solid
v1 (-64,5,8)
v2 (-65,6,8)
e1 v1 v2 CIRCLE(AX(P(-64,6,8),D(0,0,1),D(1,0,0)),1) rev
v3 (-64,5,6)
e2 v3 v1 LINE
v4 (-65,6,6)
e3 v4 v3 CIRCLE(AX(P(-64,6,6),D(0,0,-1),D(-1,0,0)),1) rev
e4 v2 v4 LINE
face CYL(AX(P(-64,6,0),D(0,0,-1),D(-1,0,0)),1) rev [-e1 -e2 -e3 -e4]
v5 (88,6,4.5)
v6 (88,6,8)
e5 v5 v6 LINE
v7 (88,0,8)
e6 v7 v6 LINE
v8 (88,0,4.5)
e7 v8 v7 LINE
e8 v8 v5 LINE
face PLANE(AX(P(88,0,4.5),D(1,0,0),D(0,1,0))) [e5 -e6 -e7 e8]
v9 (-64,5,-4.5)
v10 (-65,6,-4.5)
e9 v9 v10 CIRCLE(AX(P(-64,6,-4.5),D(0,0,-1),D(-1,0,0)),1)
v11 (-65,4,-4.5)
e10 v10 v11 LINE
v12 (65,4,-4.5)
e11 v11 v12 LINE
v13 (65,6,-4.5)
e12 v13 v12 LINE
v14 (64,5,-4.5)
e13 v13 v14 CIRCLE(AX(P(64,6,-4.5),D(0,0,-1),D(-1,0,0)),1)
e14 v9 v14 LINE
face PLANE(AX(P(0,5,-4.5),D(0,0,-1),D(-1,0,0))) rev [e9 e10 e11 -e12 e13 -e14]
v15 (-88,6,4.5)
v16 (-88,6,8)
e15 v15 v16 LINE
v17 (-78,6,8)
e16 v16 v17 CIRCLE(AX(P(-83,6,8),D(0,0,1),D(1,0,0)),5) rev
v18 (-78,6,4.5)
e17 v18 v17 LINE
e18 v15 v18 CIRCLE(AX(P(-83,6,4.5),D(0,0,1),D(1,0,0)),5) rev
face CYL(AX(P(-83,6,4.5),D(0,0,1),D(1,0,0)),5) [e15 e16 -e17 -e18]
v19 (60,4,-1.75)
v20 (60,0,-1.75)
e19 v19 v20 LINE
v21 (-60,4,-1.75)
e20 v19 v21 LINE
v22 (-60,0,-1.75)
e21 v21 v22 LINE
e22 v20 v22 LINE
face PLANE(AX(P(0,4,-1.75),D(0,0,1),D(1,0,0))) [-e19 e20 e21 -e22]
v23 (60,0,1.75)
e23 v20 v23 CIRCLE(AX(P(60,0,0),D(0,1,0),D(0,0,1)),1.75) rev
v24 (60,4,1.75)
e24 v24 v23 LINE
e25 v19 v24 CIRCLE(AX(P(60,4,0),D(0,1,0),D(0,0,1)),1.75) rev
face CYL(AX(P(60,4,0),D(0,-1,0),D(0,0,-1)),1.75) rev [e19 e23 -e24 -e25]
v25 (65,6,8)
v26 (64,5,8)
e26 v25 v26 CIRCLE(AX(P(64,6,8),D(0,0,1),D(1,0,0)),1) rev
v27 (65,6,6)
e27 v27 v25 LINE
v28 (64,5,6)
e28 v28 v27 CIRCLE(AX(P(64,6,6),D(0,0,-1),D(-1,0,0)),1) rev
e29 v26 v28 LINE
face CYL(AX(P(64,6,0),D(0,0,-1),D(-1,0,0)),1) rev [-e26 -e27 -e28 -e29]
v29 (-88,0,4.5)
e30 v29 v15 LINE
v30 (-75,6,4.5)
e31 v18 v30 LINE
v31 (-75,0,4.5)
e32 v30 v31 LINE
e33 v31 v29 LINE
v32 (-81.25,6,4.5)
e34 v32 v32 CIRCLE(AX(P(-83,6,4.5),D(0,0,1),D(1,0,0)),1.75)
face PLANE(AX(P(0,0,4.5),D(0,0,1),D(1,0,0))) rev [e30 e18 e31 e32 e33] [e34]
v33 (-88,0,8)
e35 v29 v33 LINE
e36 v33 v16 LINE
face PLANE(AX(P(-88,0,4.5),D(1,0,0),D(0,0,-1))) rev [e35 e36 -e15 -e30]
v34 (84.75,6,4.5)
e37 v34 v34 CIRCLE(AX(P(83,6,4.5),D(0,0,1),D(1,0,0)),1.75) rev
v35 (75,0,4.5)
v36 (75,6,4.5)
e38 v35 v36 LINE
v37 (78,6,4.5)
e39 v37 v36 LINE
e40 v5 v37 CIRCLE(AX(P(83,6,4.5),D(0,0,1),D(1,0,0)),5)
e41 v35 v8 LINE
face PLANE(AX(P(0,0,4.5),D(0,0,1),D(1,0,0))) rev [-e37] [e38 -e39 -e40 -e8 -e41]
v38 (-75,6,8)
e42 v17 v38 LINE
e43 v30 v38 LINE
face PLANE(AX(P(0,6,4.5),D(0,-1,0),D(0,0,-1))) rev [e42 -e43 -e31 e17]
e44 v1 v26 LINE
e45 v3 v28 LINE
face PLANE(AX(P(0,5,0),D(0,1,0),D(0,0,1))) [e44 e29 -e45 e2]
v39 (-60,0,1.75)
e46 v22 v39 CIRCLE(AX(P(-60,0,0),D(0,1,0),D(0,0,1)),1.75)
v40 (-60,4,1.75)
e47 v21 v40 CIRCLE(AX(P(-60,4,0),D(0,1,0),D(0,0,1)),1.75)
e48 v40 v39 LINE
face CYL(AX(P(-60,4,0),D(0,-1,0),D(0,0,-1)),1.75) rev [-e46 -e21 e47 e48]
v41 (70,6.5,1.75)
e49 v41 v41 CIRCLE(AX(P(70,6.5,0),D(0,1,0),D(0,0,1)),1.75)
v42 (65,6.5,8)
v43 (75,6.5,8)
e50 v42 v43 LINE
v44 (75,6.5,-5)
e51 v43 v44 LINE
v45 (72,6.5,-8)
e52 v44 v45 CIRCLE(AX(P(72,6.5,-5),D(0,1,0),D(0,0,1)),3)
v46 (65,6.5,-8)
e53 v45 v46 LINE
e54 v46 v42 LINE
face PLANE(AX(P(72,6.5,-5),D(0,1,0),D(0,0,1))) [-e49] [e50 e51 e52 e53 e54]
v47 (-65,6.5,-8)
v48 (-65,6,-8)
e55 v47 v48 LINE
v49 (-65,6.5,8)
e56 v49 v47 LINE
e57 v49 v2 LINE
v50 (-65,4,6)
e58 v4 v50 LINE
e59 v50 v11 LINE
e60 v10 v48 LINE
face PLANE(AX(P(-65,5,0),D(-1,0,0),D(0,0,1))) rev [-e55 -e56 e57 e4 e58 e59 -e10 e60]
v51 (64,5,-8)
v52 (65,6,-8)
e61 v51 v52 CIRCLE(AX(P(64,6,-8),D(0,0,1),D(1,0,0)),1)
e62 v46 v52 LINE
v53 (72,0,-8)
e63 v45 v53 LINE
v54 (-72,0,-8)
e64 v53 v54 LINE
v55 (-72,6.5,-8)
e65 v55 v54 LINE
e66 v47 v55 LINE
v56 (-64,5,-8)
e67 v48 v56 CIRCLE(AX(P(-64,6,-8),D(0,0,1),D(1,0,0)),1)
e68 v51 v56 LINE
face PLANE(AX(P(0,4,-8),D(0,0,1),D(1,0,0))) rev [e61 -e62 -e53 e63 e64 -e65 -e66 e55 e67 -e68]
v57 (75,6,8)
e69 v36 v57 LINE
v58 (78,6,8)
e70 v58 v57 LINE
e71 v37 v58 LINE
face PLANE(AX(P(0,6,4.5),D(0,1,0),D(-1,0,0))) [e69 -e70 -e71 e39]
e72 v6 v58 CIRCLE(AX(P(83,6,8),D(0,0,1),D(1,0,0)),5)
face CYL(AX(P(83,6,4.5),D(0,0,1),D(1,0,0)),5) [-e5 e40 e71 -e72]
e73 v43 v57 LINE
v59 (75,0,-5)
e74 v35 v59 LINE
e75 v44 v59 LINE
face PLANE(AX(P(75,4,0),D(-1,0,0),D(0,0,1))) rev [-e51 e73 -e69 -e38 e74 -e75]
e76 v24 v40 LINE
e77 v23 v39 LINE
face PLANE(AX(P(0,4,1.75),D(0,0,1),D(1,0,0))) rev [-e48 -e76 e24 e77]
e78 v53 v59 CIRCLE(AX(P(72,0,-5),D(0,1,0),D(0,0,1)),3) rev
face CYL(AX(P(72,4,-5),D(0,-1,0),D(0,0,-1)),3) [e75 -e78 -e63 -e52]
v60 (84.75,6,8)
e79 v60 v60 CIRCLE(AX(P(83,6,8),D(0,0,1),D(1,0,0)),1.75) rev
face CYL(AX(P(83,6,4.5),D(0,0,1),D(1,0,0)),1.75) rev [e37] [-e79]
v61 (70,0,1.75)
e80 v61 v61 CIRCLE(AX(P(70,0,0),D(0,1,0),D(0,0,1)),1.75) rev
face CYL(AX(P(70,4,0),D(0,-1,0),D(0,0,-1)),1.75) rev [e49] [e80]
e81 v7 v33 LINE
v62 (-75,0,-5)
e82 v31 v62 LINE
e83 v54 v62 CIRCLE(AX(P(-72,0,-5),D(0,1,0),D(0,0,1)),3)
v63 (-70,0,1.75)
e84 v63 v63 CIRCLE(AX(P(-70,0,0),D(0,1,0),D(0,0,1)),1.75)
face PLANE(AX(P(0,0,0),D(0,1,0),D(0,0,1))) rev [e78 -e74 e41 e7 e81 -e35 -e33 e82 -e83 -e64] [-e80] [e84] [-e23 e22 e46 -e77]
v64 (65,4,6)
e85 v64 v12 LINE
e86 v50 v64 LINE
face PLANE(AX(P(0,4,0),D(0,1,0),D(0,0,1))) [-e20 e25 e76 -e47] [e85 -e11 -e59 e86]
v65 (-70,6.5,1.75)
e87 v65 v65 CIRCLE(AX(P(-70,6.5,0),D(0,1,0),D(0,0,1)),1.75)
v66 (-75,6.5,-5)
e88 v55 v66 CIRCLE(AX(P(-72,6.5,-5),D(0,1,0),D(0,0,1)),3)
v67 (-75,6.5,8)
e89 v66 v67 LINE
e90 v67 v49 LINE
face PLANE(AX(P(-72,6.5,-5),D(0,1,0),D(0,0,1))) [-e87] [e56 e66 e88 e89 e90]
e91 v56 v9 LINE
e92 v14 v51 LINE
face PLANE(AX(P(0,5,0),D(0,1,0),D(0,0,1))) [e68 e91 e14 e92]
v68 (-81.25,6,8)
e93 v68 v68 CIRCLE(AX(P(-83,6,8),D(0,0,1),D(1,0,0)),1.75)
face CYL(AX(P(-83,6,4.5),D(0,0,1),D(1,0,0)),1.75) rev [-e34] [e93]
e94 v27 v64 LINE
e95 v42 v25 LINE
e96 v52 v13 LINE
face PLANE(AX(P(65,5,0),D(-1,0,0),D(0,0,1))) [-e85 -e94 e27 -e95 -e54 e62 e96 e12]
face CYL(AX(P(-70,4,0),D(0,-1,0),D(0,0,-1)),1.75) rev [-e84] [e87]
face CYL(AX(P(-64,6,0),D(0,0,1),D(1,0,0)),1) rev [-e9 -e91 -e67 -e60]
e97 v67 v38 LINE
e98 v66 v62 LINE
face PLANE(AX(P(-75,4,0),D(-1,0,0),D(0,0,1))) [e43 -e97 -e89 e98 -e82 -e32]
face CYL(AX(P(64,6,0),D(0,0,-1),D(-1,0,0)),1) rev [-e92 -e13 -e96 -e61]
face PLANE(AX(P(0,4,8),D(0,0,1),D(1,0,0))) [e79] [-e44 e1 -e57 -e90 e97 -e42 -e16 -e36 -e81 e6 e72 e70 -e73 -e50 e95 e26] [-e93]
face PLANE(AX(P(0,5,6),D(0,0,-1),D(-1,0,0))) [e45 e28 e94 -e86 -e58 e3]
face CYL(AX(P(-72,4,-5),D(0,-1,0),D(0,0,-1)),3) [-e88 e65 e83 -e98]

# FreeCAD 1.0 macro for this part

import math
import FreeCAD as App
import Part
import Sketcher

V = App.Vector


def edges_at(feature, points):
    """Names of the edges that pass closest to the given points."""
    edges = feature.Shape.Edges
    near = lambda p: min(range(len(edges)), key=lambda i: edges[i].distToShape(Part.Vertex(*p))[0])
    return sorted({f"Edge{near(p) + 1}" for p in points})

doc = App.newDocument("Part")
body = doc.addObject("PartDesign::Body", "Body")

sketch1 = body.newObject("Sketcher::SketchObject", "Sketch")
sketch1.AttachmentSupport = (doc.getObject("XZ_Plane"), [""])
sketch1.MapMode = "FlatFace"
sketch1.addGeometry([
    Part.LineSegment(V(-75, 8, 0), V(75, 8, 0)),
    Part.LineSegment(V(75, 8, 0), V(75, -5, 0)),
    Part.ArcOfCircle(Part.Circle(V(72, -5, 0), V(0, 0, 1), 3), math.radians(-90), math.radians(0)),
    Part.LineSegment(V(72, -8, 0), V(-72, -8, 0)),
    Part.ArcOfCircle(Part.Circle(V(-72, -5, 0), V(0, 0, 1), 3), math.radians(180), math.radians(270)),
    Part.LineSegment(V(-75, -5, 0), V(-75, 8, 0)),
    Part.Circle(V(-70, 0, 0), V(0, 0, 1), 1.75),
    Part.Circle(V(70, 0, 0), V(0, 0, 1), 1.75),
    Part.ArcOfCircle(Part.Circle(V(60, 0, 0), V(0, 0, 1), 1.75), math.radians(-90), math.radians(0)),
    Part.ArcOfCircle(Part.Circle(V(60, 0, 0), V(0, 0, 1), 1.75), math.radians(0), math.radians(90)),
    Part.LineSegment(V(60, 1.75, 0), V(-60, 1.75, 0)),
    Part.ArcOfCircle(Part.Circle(V(-60, 0, 0), V(0, 0, 1), 1.75), math.radians(90), math.radians(270)),
    Part.LineSegment(V(-60, -1.75, 0), V(60, -1.75, 0)),
], False)
sketch1.addConstraint([
    Sketcher.Constraint("Coincident", 0, 2, 1, 1),
    Sketcher.Constraint("Tangent", 1, 2, 2, 2),
    Sketcher.Constraint("Tangent", 2, 1, 3, 1),
    Sketcher.Constraint("Tangent", 3, 2, 4, 2),
    Sketcher.Constraint("Tangent", 4, 1, 5, 1),
    Sketcher.Constraint("Coincident", 5, 2, 0, 1),
    Sketcher.Constraint("Tangent", 8, 2, 9, 1),
    Sketcher.Constraint("Tangent", 9, 2, 10, 1),
    Sketcher.Constraint("Tangent", 10, 2, 11, 1),
    Sketcher.Constraint("Tangent", 11, 2, 12, 1),
    Sketcher.Constraint("Tangent", 12, 2, 8, 1),
    Sketcher.Constraint("Horizontal", 0),
    Sketcher.Constraint("Vertical", 1),
    Sketcher.Constraint("Horizontal", 3),
    Sketcher.Constraint("Vertical", 5),
    Sketcher.Constraint("Horizontal", 10),
    Sketcher.Constraint("Horizontal", 12),
    Sketcher.Constraint("Equal", 2, 4),
    Sketcher.Constraint("Equal", 6, 7),
    Sketcher.Constraint("Equal", 7, 8),
    Sketcher.Constraint("Equal", 8, 9),
    Sketcher.Constraint("Symmetric", 6, 3, 7, 3, -1, 1),
    Sketcher.Constraint("Symmetric", 8, 3, 11, 3, -1, 1),
    Sketcher.Constraint("PointOnObject", 6, 3, -1),
    Sketcher.Constraint("PointOnObject", 8, 2, -1),
    Sketcher.Constraint("Radius", 2, 3.0),
    Sketcher.Constraint("Diameter", 6, 3.5),
    Sketcher.Constraint("DistanceX", 0, 1, 0, 2, 150.0),
    Sketcher.Constraint("DistanceX", 10, 2, 10, 1, 120.0),
    Sketcher.Constraint("DistanceY", 1, 2, 1, 1, 13.0),
    Sketcher.Constraint("DistanceX", -1, 1, 2, 3, 72.0),
    Sketcher.Constraint("DistanceY", 2, 3, -1, 1, 5.0),
    Sketcher.Constraint("DistanceX", 6, 3, -1, 1, 70.0),
])
pad1 = body.newObject("PartDesign::Pad", "Pad")
pad1.Profile = sketch1
pad1.Length = 4
pad1.Reversed = True

sketch2 = body.newObject("Sketcher::SketchObject", "Sketch001")
sketch2.AttachmentSupport = (doc.getObject("XZ_Plane"), [""])
sketch2.MapMode = "FlatFace"
sketch2.AttachmentOffset = App.Placement(V(0, 0, -4), App.Rotation())
sketch2.addGeometry([
    Part.LineSegment(V(-75, 8, 0), V(75, 8, 0)),
    Part.LineSegment(V(75, 8, 0), V(75, -5, 0)),
    Part.ArcOfCircle(Part.Circle(V(72, -5, 0), V(0, 0, 1), 3), math.radians(-90), math.radians(0)),
    Part.LineSegment(V(72, -8, 0), V(-72, -8, 0)),
    Part.ArcOfCircle(Part.Circle(V(-72, -5, 0), V(0, 0, 1), 3), math.radians(180), math.radians(270)),
    Part.LineSegment(V(-75, -5, 0), V(-75, 8, 0)),
    Part.Circle(V(-70, 0, 0), V(0, 0, 1), 1.75),
    Part.LineSegment(V(65, 6, 0), V(-65, 6, 0)),
    Part.LineSegment(V(-65, 6, 0), V(-65, -4.5, 0)),
    Part.LineSegment(V(-65, -4.5, 0), V(65, -4.5, 0)),
    Part.LineSegment(V(65, -4.5, 0), V(65, 6, 0)),
    Part.Circle(V(70, 0, 0), V(0, 0, 1), 1.75),
], False)
sketch2.addConstraint([
    Sketcher.Constraint("Coincident", 0, 2, 1, 1),
    Sketcher.Constraint("Tangent", 1, 2, 2, 2),
    Sketcher.Constraint("Tangent", 2, 1, 3, 1),
    Sketcher.Constraint("Tangent", 3, 2, 4, 2),
    Sketcher.Constraint("Tangent", 4, 1, 5, 1),
    Sketcher.Constraint("Coincident", 5, 2, 0, 1),
    Sketcher.Constraint("Coincident", 7, 2, 8, 1),
    Sketcher.Constraint("Coincident", 8, 2, 9, 1),
    Sketcher.Constraint("Coincident", 9, 2, 10, 1),
    Sketcher.Constraint("Coincident", 10, 2, 7, 1),
    Sketcher.Constraint("Horizontal", 0),
    Sketcher.Constraint("Vertical", 1),
    Sketcher.Constraint("Horizontal", 3),
    Sketcher.Constraint("Vertical", 5),
    Sketcher.Constraint("Horizontal", 7),
    Sketcher.Constraint("Vertical", 8),
    Sketcher.Constraint("Horizontal", 9),
    Sketcher.Constraint("Vertical", 10),
    Sketcher.Constraint("Equal", 2, 4),
    Sketcher.Constraint("Equal", 6, 11),
    Sketcher.Constraint("Symmetric", 6, 3, 11, 3, -1, 1),
    Sketcher.Constraint("PointOnObject", 6, 3, -1),
    Sketcher.Constraint("Radius", 2, 3.0),
    Sketcher.Constraint("Diameter", 6, 3.5),
    Sketcher.Constraint("DistanceX", 0, 1, 0, 2, 150.0),
    Sketcher.Constraint("DistanceX", 7, 2, 7, 1, 130.0),
    Sketcher.Constraint("DistanceY", 1, 2, 1, 1, 13.0),
    Sketcher.Constraint("DistanceY", 8, 2, 8, 1, 10.5),
    Sketcher.Constraint("DistanceX", -1, 1, 2, 3, 72.0),
    Sketcher.Constraint("DistanceY", 2, 3, -1, 1, 5.0),
    Sketcher.Constraint("DistanceX", 6, 3, -1, 1, 70.0),
    Sketcher.Constraint("DistanceX", 7, 2, -1, 1, 65.0),
    Sketcher.Constraint("DistanceY", -1, 1, 7, 2, 6.0),
])
pad2 = body.newObject("PartDesign::Pad", "Pad001")
pad2.Profile = sketch2
pad2.Length = 1
pad2.Reversed = True

sketch3 = body.newObject("Sketcher::SketchObject", "Sketch002")
sketch3.AttachmentSupport = (doc.getObject("XZ_Plane"), [""])
sketch3.MapMode = "FlatFace"
sketch3.AttachmentOffset = App.Placement(V(0, 0, -5), App.Rotation())
sketch3.addGeometry([
    Part.LineSegment(V(72, -8, 0), V(65, -8, 0)),
    Part.LineSegment(V(65, -8, 0), V(65, 8, 0)),
    Part.LineSegment(V(65, 8, 0), V(75, 8, 0)),
    Part.LineSegment(V(75, 8, 0), V(75, -5, 0)),
    Part.ArcOfCircle(Part.Circle(V(72, -5, 0), V(0, 0, 1), 3), math.radians(-90), math.radians(0)),
    Part.Circle(V(70, 0, 0), V(0, 0, 1), 1.75),
    Part.LineSegment(V(-65, -8, 0), V(-72, -8, 0)),
    Part.ArcOfCircle(Part.Circle(V(-72, -5, 0), V(0, 0, 1), 3), math.radians(180), math.radians(270)),
    Part.LineSegment(V(-75, -5, 0), V(-75, 8, 0)),
    Part.LineSegment(V(-75, 8, 0), V(-65, 8, 0)),
    Part.LineSegment(V(-65, 8, 0), V(-65, -8, 0)),
    Part.Circle(V(-70, 0, 0), V(0, 0, 1), 1.75),
], False)
sketch3.addConstraint([
    Sketcher.Constraint("Coincident", 0, 2, 1, 1),
    Sketcher.Constraint("Coincident", 1, 2, 2, 1),
    Sketcher.Constraint("Coincident", 2, 2, 3, 1),
    Sketcher.Constraint("Tangent", 3, 2, 4, 2),
    Sketcher.Constraint("Tangent", 4, 1, 0, 1),
    Sketcher.Constraint("Tangent", 6, 2, 7, 2),
    Sketcher.Constraint("Tangent", 7, 1, 8, 1),
    Sketcher.Constraint("Coincident", 8, 2, 9, 1),
    Sketcher.Constraint("Coincident", 9, 2, 10, 1),
    Sketcher.Constraint("Coincident", 10, 2, 6, 1),
    Sketcher.Constraint("Horizontal", 0),
    Sketcher.Constraint("Vertical", 1),
    Sketcher.Constraint("Horizontal", 2),
    Sketcher.Constraint("Vertical", 3),
    Sketcher.Constraint("Horizontal", 6),
    Sketcher.Constraint("Vertical", 8),
    Sketcher.Constraint("Horizontal", 9),
    Sketcher.Constraint("Vertical", 10),
    Sketcher.Constraint("Equal", 4, 7),
    Sketcher.Constraint("Equal", 5, 11),
    Sketcher.Constraint("Symmetric", 5, 3, 11, 3, -1, 1),
    Sketcher.Constraint("Symmetric", 0, 2, 9, 2, -1, 1),
    Sketcher.Constraint("Symmetric", 4, 3, 7, 3, -2),
    Sketcher.Constraint("PointOnObject", 5, 3, -1),
    Sketcher.Constraint("Horizontal", 2, 2, 8, 2),
    Sketcher.Constraint("Radius", 4, 3.0),
    Sketcher.Constraint("Diameter", 5, 3.5),
    Sketcher.Constraint("DistanceX", 0, 2, 0, 1, 7.0),
    Sketcher.Constraint("DistanceY", 1, 1, 1, 2, 16.0),
    Sketcher.Constraint("DistanceX", -1, 1, 4, 3, 72.0),
    Sketcher.Constraint("DistanceX", -1, 1, 5, 3, 70.0),
])
pad3 = body.newObject("PartDesign::Pad", "Pad002")
pad3.Profile = sketch3
pad3.Length = 1.5
pad3.Reversed = True
doc.recompute()

fillet = body.newObject("PartDesign::Fillet", "Fillet")
fillet.Base = (pad3, edges_at(pad3, [
    (-65, 5, 7),
    (65, 5, 7),
    (65, 5, -6.25),
    (-65, 5, -6.25),
]))
fillet.Radius = 1

sketch4 = body.newObject("Sketcher::SketchObject", "Sketch003")
sketch4.AttachmentSupport = (doc.getObject("XY_Plane"), [""])
sketch4.MapMode = "FlatFace"
sketch4.AttachmentOffset = App.Placement(V(0, 0, 8), App.Rotation())
sketch4.addGeometry([
    Part.LineSegment(V(-88, 0, 0), V(-75, 0, 0)),
    Part.LineSegment(V(-75, 0, 0), V(-75, 6, 0)),
    Part.LineSegment(V(-75, 6, 0), V(-78, 6, 0)),
    Part.ArcOfCircle(Part.Circle(V(-83, 6, 0), V(0, 0, 1), 5), math.radians(0), math.radians(180)),
    Part.LineSegment(V(-88, 6, 0), V(-88, 0, 0)),
    Part.Circle(V(-83, 6, 0), V(0, 0, 1), 1.75),
    Part.LineSegment(V(78, 6, 0), V(75, 6, 0)),
    Part.LineSegment(V(75, 6, 0), V(75, 0, 0)),
    Part.LineSegment(V(75, 0, 0), V(88, 0, 0)),
    Part.LineSegment(V(88, 0, 0), V(88, 6, 0)),
    Part.ArcOfCircle(Part.Circle(V(83, 6, 0), V(0, 0, 1), 5), math.radians(0), math.radians(180)),
    Part.Circle(V(83, 6, 0), V(0, 0, 1), 1.75),
], False)
sketch4.addConstraint([
    Sketcher.Constraint("Coincident", 0, 2, 1, 1),
    Sketcher.Constraint("Coincident", 1, 2, 2, 1),
    Sketcher.Constraint("Coincident", 2, 2, 3, 1),
    Sketcher.Constraint("Tangent", 3, 2, 4, 1),
    Sketcher.Constraint("Coincident", 4, 2, 0, 1),
    Sketcher.Constraint("Coincident", 6, 2, 7, 1),
    Sketcher.Constraint("Coincident", 7, 2, 8, 1),
    Sketcher.Constraint("Coincident", 8, 2, 9, 1),
    Sketcher.Constraint("Tangent", 9, 2, 10, 1),
    Sketcher.Constraint("Coincident", 10, 2, 6, 1),
    Sketcher.Constraint("Horizontal", 0),
    Sketcher.Constraint("Vertical", 1),
    Sketcher.Constraint("Horizontal", 2),
    Sketcher.Constraint("Vertical", 4),
    Sketcher.Constraint("Horizontal", 6),
    Sketcher.Constraint("Vertical", 7),
    Sketcher.Constraint("Horizontal", 8),
    Sketcher.Constraint("Vertical", 9),
    Sketcher.Constraint("Coincident", 5, 3, 3, 3),
    Sketcher.Constraint("Coincident", 11, 3, 10, 3),
    Sketcher.Constraint("Equal", 3, 10),
    Sketcher.Constraint("Equal", 5, 11),
    Sketcher.Constraint("Symmetric", 0, 2, 7, 2, -1, 1),
    Sketcher.Constraint("Symmetric", 3, 3, 10, 3, -2),
    Sketcher.Constraint("PointOnObject", 0, 2, -1),
    Sketcher.Constraint("Horizontal", 11, 3, 1, 2),
    Sketcher.Constraint("Horizontal", 3, 2, 6, 2),
    Sketcher.Constraint("Radius", 3, 5.0),
    Sketcher.Constraint("Diameter", 5, 3.5),
    Sketcher.Constraint("DistanceX", 0, 1, 0, 2, 13.0),
    Sketcher.Constraint("DistanceY", 1, 1, 1, 2, 6.0),
    Sketcher.Constraint("DistanceX", 3, 3, -1, 1, 83.0),
])
pad4 = body.newObject("PartDesign::Pad", "Pad003")
pad4.Profile = sketch4
pad4.Length = 3.5
pad4.Reversed = True

doc.recompute()
